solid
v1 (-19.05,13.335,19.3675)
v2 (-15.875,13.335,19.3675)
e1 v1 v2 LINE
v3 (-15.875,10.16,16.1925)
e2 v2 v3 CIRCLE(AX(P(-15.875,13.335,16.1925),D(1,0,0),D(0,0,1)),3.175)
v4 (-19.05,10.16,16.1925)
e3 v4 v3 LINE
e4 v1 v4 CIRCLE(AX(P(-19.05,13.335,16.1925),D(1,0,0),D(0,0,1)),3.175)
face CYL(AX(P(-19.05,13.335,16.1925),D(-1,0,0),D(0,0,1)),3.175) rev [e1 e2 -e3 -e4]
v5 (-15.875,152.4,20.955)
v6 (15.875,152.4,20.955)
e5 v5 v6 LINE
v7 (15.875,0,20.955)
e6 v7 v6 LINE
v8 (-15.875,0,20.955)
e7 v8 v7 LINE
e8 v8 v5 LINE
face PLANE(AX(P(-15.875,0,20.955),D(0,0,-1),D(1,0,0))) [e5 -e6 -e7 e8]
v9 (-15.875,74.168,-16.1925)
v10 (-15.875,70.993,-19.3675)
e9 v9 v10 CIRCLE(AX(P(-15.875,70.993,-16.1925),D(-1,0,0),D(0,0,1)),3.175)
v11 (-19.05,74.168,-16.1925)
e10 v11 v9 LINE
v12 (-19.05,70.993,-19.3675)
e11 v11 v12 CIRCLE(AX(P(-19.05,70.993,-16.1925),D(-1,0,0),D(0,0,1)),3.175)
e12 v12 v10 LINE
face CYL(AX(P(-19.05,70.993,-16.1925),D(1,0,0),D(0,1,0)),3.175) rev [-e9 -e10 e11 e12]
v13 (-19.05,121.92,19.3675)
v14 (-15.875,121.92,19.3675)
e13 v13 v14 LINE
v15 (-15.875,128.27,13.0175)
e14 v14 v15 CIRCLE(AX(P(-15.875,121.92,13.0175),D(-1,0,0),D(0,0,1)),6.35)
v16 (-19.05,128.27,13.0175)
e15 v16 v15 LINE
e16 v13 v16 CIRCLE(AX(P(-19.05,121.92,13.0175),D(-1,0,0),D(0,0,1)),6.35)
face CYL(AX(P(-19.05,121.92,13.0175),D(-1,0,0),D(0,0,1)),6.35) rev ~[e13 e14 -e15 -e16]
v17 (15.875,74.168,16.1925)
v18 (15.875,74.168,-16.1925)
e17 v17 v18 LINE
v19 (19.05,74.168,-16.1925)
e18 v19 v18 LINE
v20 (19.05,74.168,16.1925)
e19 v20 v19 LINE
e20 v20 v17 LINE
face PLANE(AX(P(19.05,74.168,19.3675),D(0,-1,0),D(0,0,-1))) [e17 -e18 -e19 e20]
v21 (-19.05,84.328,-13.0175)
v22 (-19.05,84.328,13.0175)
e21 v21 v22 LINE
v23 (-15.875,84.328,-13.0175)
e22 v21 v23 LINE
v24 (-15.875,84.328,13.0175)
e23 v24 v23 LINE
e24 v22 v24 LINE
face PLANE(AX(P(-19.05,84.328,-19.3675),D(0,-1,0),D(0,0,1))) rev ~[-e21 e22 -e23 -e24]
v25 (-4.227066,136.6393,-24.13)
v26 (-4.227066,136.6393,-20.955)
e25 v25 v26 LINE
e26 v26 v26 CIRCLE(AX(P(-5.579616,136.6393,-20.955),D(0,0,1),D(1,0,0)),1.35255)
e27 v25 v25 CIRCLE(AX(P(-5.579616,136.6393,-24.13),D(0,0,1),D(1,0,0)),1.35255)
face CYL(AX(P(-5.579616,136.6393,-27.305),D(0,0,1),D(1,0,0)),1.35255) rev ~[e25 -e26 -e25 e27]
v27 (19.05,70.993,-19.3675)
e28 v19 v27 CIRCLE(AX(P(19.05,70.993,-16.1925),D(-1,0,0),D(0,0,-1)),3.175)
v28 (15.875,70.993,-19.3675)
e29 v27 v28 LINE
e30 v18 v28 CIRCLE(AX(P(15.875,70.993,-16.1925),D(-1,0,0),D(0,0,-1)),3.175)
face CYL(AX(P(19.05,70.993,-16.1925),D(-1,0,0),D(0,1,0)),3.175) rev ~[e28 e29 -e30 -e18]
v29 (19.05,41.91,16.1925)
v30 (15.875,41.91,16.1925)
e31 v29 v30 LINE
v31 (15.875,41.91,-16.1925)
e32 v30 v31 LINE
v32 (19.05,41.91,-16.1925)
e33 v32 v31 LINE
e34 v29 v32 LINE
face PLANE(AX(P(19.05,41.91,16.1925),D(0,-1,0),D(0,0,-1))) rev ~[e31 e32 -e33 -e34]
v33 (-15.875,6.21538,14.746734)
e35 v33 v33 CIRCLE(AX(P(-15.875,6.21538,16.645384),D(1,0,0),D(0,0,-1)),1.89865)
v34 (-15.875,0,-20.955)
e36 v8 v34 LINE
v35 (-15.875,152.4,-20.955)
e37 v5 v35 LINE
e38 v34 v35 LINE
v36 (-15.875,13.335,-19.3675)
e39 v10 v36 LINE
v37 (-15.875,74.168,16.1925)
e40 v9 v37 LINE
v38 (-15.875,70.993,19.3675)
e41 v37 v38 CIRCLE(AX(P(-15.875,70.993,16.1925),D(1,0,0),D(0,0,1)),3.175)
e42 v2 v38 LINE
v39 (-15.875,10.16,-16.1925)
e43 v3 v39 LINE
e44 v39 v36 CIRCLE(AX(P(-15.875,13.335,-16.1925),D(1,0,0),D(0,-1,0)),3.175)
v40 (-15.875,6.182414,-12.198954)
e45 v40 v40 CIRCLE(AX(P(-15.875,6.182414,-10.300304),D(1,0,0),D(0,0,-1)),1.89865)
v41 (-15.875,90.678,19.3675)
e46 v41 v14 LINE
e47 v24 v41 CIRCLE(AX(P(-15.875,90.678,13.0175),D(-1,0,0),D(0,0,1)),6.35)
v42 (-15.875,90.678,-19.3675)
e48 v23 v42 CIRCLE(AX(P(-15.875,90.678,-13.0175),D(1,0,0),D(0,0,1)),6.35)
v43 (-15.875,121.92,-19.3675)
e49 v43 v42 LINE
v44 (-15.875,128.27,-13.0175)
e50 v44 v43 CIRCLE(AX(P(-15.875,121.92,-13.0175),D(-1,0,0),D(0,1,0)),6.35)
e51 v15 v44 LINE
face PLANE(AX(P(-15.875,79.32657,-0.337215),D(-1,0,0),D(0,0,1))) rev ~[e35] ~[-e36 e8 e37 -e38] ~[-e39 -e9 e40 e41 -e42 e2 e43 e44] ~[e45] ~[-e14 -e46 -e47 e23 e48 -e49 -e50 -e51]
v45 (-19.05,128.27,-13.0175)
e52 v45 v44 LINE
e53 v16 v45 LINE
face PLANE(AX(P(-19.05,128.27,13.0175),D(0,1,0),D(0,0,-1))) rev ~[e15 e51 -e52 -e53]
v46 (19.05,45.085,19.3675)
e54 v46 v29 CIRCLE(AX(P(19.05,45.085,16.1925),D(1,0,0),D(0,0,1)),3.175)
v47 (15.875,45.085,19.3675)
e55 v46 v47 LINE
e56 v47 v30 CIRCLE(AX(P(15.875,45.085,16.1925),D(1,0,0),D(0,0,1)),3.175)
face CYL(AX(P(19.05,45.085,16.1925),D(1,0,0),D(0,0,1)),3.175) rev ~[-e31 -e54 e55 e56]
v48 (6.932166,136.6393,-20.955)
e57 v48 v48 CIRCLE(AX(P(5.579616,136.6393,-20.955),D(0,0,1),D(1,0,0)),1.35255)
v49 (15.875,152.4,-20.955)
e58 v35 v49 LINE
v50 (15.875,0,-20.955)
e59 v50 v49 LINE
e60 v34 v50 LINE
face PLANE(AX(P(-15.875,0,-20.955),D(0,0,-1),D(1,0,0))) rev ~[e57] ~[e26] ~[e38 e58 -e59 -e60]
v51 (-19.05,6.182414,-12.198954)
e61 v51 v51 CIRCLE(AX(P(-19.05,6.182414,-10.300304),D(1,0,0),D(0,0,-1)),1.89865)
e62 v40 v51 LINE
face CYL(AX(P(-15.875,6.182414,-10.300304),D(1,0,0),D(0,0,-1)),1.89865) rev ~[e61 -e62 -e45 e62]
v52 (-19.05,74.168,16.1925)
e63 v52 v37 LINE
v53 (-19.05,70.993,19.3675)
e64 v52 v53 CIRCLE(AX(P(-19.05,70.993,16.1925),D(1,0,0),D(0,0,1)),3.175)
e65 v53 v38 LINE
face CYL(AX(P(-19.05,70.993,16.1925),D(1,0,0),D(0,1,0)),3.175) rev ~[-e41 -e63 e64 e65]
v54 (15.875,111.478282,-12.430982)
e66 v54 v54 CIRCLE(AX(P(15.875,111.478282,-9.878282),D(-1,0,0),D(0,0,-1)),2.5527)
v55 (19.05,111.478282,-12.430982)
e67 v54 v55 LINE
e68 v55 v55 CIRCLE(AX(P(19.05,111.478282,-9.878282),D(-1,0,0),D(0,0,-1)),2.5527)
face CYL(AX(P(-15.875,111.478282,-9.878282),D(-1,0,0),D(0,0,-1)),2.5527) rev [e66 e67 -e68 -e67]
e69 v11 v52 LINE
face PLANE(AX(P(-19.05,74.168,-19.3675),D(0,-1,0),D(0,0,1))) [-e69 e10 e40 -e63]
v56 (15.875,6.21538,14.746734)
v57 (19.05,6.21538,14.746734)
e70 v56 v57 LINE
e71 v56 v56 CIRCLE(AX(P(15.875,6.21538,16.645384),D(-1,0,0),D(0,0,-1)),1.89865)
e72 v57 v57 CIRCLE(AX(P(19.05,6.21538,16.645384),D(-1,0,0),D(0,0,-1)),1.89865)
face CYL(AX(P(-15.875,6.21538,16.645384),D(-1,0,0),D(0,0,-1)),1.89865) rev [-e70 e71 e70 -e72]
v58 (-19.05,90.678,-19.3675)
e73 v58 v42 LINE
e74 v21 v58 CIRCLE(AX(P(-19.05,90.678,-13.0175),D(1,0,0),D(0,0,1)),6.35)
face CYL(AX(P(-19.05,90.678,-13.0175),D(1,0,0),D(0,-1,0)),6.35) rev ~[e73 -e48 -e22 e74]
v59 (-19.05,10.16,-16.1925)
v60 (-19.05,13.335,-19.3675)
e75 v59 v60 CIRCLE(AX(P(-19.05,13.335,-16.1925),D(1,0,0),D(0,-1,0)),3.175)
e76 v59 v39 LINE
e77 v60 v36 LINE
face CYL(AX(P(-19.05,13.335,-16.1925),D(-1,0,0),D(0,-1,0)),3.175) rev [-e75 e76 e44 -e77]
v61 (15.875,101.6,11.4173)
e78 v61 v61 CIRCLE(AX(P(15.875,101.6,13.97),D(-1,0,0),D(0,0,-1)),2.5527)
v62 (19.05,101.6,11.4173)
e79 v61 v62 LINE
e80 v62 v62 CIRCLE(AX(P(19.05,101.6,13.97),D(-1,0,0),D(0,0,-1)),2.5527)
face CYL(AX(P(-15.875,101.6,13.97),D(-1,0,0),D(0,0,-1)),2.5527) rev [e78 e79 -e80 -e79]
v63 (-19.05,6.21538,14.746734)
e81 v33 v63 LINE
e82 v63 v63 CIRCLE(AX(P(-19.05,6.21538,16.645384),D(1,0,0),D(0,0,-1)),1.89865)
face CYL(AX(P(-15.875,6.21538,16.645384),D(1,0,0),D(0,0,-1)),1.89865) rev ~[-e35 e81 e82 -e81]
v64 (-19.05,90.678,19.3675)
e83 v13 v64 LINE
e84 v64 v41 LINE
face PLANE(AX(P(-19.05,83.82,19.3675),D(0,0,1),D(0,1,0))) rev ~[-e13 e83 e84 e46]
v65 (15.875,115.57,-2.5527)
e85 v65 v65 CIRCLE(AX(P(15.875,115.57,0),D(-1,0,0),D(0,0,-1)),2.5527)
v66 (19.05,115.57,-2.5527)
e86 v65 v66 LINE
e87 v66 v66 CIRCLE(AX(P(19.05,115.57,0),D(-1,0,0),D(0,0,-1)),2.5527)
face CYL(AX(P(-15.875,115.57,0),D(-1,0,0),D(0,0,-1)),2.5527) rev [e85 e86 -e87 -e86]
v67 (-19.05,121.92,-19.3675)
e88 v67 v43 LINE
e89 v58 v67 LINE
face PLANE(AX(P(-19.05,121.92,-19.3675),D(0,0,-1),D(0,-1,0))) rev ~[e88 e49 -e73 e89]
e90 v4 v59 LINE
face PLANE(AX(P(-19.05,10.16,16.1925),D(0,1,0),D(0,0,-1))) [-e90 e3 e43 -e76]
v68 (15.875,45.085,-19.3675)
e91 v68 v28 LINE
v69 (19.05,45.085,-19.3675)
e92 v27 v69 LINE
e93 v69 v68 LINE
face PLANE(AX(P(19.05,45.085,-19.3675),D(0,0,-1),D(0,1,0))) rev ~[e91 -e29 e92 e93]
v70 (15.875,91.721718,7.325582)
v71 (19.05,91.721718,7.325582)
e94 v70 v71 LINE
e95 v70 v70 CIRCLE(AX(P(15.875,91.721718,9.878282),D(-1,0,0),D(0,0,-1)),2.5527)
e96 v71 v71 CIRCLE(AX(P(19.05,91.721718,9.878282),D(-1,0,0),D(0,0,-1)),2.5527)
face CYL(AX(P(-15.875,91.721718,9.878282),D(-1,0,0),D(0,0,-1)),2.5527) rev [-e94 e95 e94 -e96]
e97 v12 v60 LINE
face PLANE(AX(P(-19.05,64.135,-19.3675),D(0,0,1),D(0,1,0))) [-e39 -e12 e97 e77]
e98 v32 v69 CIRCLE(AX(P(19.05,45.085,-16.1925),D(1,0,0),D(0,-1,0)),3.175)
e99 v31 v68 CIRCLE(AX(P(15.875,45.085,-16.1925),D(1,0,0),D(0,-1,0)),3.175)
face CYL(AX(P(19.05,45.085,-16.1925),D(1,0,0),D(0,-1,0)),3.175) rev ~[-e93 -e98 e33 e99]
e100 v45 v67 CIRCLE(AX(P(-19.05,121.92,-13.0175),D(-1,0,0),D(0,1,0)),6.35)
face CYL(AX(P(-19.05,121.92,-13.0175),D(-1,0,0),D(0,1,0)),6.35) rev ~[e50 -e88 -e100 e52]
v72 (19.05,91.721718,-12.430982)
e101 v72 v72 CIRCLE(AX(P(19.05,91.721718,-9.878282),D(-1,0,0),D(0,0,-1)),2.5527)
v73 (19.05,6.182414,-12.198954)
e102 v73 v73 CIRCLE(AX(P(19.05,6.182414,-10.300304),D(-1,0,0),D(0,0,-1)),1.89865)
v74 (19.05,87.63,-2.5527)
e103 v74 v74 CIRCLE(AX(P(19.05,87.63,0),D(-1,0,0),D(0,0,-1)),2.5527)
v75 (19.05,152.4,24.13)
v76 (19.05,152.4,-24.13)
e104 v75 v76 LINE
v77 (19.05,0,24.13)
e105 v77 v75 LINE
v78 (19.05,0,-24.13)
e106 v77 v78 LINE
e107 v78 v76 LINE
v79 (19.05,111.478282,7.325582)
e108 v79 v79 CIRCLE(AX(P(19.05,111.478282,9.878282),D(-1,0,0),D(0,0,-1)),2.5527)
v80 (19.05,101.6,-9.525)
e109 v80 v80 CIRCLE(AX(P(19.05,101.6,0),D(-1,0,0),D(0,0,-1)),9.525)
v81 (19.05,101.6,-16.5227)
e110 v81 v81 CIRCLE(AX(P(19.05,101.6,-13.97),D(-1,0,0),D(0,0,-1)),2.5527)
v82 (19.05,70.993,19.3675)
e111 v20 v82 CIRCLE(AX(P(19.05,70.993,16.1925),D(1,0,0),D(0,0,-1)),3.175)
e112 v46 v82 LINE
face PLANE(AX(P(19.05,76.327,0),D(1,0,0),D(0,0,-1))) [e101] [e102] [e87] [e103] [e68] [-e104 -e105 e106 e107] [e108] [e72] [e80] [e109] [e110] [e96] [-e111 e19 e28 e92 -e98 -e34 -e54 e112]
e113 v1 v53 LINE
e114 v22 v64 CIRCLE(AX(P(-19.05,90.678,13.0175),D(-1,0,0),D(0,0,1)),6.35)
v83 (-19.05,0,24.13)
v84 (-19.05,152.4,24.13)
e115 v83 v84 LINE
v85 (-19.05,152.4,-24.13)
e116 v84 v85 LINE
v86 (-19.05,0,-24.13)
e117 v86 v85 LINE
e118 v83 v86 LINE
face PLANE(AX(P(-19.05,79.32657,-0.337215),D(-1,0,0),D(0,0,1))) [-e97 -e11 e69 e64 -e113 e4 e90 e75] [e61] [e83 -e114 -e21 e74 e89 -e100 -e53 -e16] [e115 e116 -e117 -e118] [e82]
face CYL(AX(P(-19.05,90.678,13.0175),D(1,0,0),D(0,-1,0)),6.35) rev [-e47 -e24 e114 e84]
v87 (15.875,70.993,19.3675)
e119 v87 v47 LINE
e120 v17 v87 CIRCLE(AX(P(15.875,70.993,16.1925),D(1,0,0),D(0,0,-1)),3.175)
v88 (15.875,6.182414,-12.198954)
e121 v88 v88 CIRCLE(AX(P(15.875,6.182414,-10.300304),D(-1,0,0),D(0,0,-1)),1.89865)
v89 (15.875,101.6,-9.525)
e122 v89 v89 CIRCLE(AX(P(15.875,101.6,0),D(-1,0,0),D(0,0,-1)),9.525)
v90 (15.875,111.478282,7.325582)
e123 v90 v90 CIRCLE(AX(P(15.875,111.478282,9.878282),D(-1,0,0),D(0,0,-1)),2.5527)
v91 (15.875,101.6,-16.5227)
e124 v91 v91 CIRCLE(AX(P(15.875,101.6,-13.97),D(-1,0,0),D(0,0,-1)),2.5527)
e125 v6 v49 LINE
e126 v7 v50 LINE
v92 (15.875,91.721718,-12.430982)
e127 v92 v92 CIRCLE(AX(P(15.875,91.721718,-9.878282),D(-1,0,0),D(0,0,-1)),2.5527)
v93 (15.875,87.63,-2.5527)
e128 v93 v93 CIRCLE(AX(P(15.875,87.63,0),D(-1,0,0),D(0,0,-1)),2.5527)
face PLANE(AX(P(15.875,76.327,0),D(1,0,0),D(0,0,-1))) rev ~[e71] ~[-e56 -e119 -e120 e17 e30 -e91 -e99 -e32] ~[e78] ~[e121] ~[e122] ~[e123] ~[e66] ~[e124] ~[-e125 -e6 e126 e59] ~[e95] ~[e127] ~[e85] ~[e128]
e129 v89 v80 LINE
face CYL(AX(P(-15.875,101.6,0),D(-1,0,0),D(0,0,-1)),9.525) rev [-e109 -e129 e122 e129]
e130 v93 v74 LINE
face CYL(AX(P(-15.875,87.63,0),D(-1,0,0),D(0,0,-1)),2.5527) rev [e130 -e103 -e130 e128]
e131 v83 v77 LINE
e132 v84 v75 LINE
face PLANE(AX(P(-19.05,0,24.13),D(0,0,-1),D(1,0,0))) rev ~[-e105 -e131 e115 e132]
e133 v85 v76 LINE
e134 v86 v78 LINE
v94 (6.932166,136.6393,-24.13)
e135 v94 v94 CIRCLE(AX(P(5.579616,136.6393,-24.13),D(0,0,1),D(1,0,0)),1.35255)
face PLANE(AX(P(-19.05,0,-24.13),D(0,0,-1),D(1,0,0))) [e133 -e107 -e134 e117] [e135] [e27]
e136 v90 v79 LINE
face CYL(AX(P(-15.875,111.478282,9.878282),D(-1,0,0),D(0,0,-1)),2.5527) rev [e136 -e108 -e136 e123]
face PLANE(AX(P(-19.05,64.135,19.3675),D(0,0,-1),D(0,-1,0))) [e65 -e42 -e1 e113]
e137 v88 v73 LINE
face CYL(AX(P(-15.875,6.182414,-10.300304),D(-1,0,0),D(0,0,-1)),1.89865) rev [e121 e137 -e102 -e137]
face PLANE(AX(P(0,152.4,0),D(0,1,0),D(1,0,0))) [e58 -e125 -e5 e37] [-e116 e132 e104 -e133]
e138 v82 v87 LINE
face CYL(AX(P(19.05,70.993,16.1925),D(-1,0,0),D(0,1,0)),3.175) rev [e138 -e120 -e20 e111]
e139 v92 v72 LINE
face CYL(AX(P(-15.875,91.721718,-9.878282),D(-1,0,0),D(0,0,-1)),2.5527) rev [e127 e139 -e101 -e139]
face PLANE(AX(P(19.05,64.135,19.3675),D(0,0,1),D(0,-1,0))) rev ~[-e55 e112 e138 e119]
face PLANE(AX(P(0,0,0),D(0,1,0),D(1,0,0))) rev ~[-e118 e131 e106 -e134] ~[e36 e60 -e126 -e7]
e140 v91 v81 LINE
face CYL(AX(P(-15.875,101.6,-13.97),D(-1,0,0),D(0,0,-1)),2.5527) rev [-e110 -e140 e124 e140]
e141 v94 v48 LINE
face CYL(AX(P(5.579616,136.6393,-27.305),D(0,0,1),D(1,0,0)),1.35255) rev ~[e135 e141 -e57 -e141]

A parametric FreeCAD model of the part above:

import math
import FreeCAD as App
import Part
import Sketcher
from FreeCAD import Vector
Q = App.Units.Quantity


def edges_at(feature, points):
    """Names of the edges that pass closest to the given points."""
    edges = feature.Shape.Edges
    near = lambda p: min(range(len(edges)), key=lambda i: edges[i].distToShape(Part.Vertex(*p))[0])
    return sorted({f"Edge{near(p) + 1}" for p in points})

doc = App.newDocument("Part")
body = doc.addObject("PartDesign::Body", "Body")

sketch1 = doc.addObject("Sketcher::SketchObject", "Sketch")
body.addObject(sketch1)
sketch1.AttachmentSupport = (doc.XZ_Plane, [""])
sketch1.MapMode = "FlatFace"
sketch1.addGeometry([
    Part.LineSegment(Vector(-19, -24, 0), Vector(-19, 24, 0)),
    Part.LineSegment(Vector(-19, 24, 0), Vector(19, 24, 0)),
    Part.LineSegment(Vector(19, 24, 0), Vector(19, -24, 0)),
    Part.LineSegment(Vector(19, -24, 0), Vector(-19, -24, 0)),
    Part.LineSegment(Vector(16, 21, 0), Vector(-16, 21, 0)),
    Part.LineSegment(Vector(-16, 21, 0), Vector(-16, -21, 0)),
    Part.LineSegment(Vector(-16, -21, 0), Vector(16, -21, 0)),
    Part.LineSegment(Vector(16, -21, 0), Vector(16, 21, 0)),
], False)
sketch1.addConstraint([
    Sketcher.Constraint("Coincident", 0, 2, 1, 1),
    Sketcher.Constraint("Coincident", 1, 2, 2, 1),
    Sketcher.Constraint("Coincident", 2, 2, 3, 1),
    Sketcher.Constraint("Coincident", 3, 2, 0, 1),
    Sketcher.Constraint("Coincident", 4, 2, 5, 1),
    Sketcher.Constraint("Coincident", 5, 2, 6, 1),
    Sketcher.Constraint("Coincident", 6, 2, 7, 1),
    Sketcher.Constraint("Coincident", 7, 2, 4, 1),
    Sketcher.Constraint("Vertical", 0),
    Sketcher.Constraint("Horizontal", 1),
    Sketcher.Constraint("Vertical", 2),
    Sketcher.Constraint("Horizontal", 3),
    Sketcher.Constraint("Horizontal", 4),
    Sketcher.Constraint("Vertical", 5),
    Sketcher.Constraint("Horizontal", 6),
    Sketcher.Constraint("Vertical", 7),
    Sketcher.Constraint("Symmetric", 0, 2, 2, 2, -1, 1),
    Sketcher.Constraint("Symmetric", 4, 2, 6, 2, -1, 1),
    Sketcher.Constraint("DistanceX", 1, 1, 1, 2, Q("1.5 in")),
    Sketcher.Constraint("DistanceY", 0, 1, 0, 2, Q("1.9 in")),
    Sketcher.Constraint("DistanceX", 4, 2, 4, 1, Q("1.25 in")),
    Sketcher.Constraint("DistanceY", 5, 2, 5, 1, Q("1.65 in")),
])
pad1 = doc.addObject("PartDesign::Pad", "Pad")
body.addObject(pad1)
pad1.Profile = sketch1
pad1.Length = Q("6 in")
pad1.Reversed = True

sketch2 = doc.addObject("Sketcher::SketchObject", "Sketch001")
body.addObject(sketch2)
sketch2.AttachmentSupport = (doc.YZ_Plane, [""])
sketch2.MapMode = "FlatFace"
sketch2.AttachmentOffset = App.Placement(Vector(0, 0, -0.625 * 25.4), App.Rotation())
sketch2.addGeometry([
    Part.Circle(Vector(6.2, 16.6, 0), Vector(0, 0, 1), 1.9),
    Part.Circle(Vector(6.2, -10.3, 0), Vector(0, 0, 1), 1.9),
], False)
sketch2.addConstraint([
    Sketcher.Constraint("Equal", 0, 1),
    Sketcher.Constraint("Diameter", 0, Q("0.1495 in")),
    Sketcher.Constraint("DistanceX", -1, 1, 0, 3, Q("0.2447 in")),
    Sketcher.Constraint("DistanceY", 1, 3, 0, 3, 26.945688),
    Sketcher.Constraint("DistanceY", -1, 1, 0, 3, 16.645384),
    Sketcher.Constraint("DistanceX", -1, 1, 1, 3, 6.182414),
])
pocket1 = doc.addObject("PartDesign::Pocket", "Pocket")
body.addObject(pocket1)
pocket1.Profile = sketch2
pocket1.Type = "ThroughAll"
pocket1.Midplane = True

sketch3 = doc.addObject("Sketcher::SketchObject", "Sketch002")
body.addObject(sketch3)
sketch3.AttachmentSupport = (doc.YZ_Plane, [""])
sketch3.MapMode = "FlatFace"
sketch3.AttachmentOffset = App.Placement(Vector(0, 0, -0.75 * 25.4), App.Rotation())
sketch3.addGeometry([
    Part.LineSegment(Vector(10.2, -16.2, 0), Vector(10.2, 16.2, 0)),
    Part.ArcOfCircle(Part.Circle(Vector(13.3, 16.2, 0), Vector(0, 0, 1), 3.2), math.radians(90), math.radians(180)),
    Part.LineSegment(Vector(13.3, 19.4, 0), Vector(64.1, 19.4, 0)),
    Part.ArcOfCircle(Part.Circle(Vector(64.1, 16.2, 0), Vector(0, 0, 1), 3.2), math.radians(0), math.radians(90)),
    Part.LineSegment(Vector(67.3, 16.2, 0), Vector(67.3, -16.2, 0)),
    Part.ArcOfCircle(Part.Circle(Vector(64.1, -16.2, 0), Vector(0, 0, 1), 3.2), math.radians(-90), math.radians(0)),
    Part.LineSegment(Vector(64.1, -19.4, 0), Vector(13.3, -19.4, 0)),
    Part.ArcOfCircle(Part.Circle(Vector(13.3, -16.2, 0), Vector(0, 0, 1), 3.2), math.radians(-180), math.radians(-90)),
], False)
sketch3.addConstraint([
    Sketcher.Constraint("Tangent", 0, 2, 1, 2),
    Sketcher.Constraint("Tangent", 1, 1, 2, 1),
    Sketcher.Constraint("Tangent", 2, 2, 3, 2),
    Sketcher.Constraint("Tangent", 3, 1, 4, 1),
    Sketcher.Constraint("Tangent", 4, 2, 5, 2),
    Sketcher.Constraint("Tangent", 5, 1, 6, 1),
    Sketcher.Constraint("Tangent", 6, 2, 7, 2),
    Sketcher.Constraint("Tangent", 7, 1, 0, 1),
    Sketcher.Constraint("Vertical", 0),
    Sketcher.Constraint("Horizontal", 2),
    Sketcher.Constraint("Vertical", 4),
    Sketcher.Constraint("Horizontal", 6),
    Sketcher.Constraint("Equal", 1, 3),
    Sketcher.Constraint("Equal", 3, 5),
    Sketcher.Constraint("Equal", 5, 7),
    Sketcher.Constraint("DistanceX", 2, 1, 2, 2, Q("2 in")),
    Sketcher.Constraint("Radius", 1, Q("0.125 in")),
    Sketcher.Constraint("DistanceX", -1, 1, 0, 2, Q("0.4 in")),
    Sketcher.Constraint("DistanceY", 7, 3, 1, 1, Q("1.4 in")),
    Sketcher.Constraint("DistanceY", -1, 1, 1, 3, Q("0.6375 in")),
])
pocket2 = doc.addObject("PartDesign::Pocket", "Pocket001")
body.addObject(pocket2)
pocket2.Profile = sketch3
pocket2.Length = Q("0.125 in")
pocket2.Reversed = True

sketch4 = doc.addObject("Sketcher::SketchObject", "Sketch003")
body.addObject(sketch4)
sketch4.AttachmentSupport = (doc.YZ_Plane, [""])
sketch4.MapMode = "FlatFace"
sketch4.AttachmentOffset = App.Placement(Vector(0, 0, 0.75 * 25.4), App.Rotation())
sketch4.addGeometry([
    Part.LineSegment(Vector(67.3, -16.2, 0), Vector(67.3, 16.2, 0)),
    Part.ArcOfCircle(Part.Circle(Vector(64.1, 16.2, 0), Vector(0, 0, 1), 3.2), math.radians(0), math.radians(90)),
    Part.LineSegment(Vector(64.1, 19.4, 0), Vector(45.1, 19.4, 0)),
    Part.ArcOfCircle(Part.Circle(Vector(45.1, 16.2, 0), Vector(0, 0, 1), 3.2), math.radians(90), math.radians(180)),
    Part.LineSegment(Vector(41.9, 16.2, 0), Vector(41.9, -16.2, 0)),
    Part.ArcOfCircle(Part.Circle(Vector(45.1, -16.2, 0), Vector(0, 0, 1), 3.2), math.radians(-180), math.radians(-90)),
    Part.LineSegment(Vector(45.1, -19.4, 0), Vector(64.1, -19.4, 0)),
    Part.ArcOfCircle(Part.Circle(Vector(64.1, -16.2, 0), Vector(0, 0, 1), 3.2), math.radians(-90), math.radians(0)),
], False)
sketch4.addConstraint([
    Sketcher.Constraint("Tangent", 0, 2, 1, 1),
    Sketcher.Constraint("Tangent", 1, 2, 2, 1),
    Sketcher.Constraint("Tangent", 2, 2, 3, 1),
    Sketcher.Constraint("Tangent", 3, 2, 4, 1),
    Sketcher.Constraint("Tangent", 4, 2, 5, 1),
    Sketcher.Constraint("Tangent", 5, 2, 6, 1),
    Sketcher.Constraint("Tangent", 6, 2, 7, 1),
    Sketcher.Constraint("Tangent", 7, 2, 0, 1),
    Sketcher.Constraint("Vertical", 0),
    Sketcher.Constraint("Horizontal", 2),
    Sketcher.Constraint("Vertical", 4),
    Sketcher.Constraint("Horizontal", 6),
    Sketcher.Constraint("Equal", 1, 3),
    Sketcher.Constraint("Equal", 3, 5),
    Sketcher.Constraint("Equal", 5, 7),
    Sketcher.Constraint("Radius", 1, Q("0.125 in")),
    Sketcher.Constraint("DistanceX", 3, 2, 0, 2, Q("1 in")),
    Sketcher.Constraint("DistanceY", 7, 3, 1, 2, Q("1.4 in")),
    Sketcher.Constraint("DistanceX", -1, 1, 0, 2, Q("2.65 in")),
    Sketcher.Constraint("DistanceY", -1, 1, 1, 3, Q("0.6375 in")),
])
pocket3 = doc.addObject("PartDesign::Pocket", "Pocket002")
body.addObject(pocket3)
pocket3.Profile = sketch4
pocket3.Length = Q("0.125 in")

sketch5 = doc.addObject("Sketcher::SketchObject", "Sketch004")
body.addObject(sketch5)
sketch5.AttachmentSupport = (doc.YZ_Plane, [""])
sketch5.MapMode = "FlatFace"
sketch5.AttachmentOffset = App.Placement(Vector(0, 0, -0.625 * 25.4), App.Rotation())
sketch5.addGeometry(Part.Circle(Vector(102, 0, 0), Vector(0, 0, 1), 10), False)
sketch5.addConstraint([
    Sketcher.Constraint("PointOnObject", 0, 3, -1),
    Sketcher.Constraint("Diameter", 0, Q("0.75 in")),
    Sketcher.Constraint("DistanceX", -1, 1, 0, 3, Q("4 in")),
])
pocket4 = doc.addObject("PartDesign::Pocket", "Pocket003")
body.addObject(pocket4)
pocket4.Profile = sketch5
pocket4.Length = Q("1.375 in")
pocket4.Reversed = True

sketch6 = doc.addObject("Sketcher::SketchObject", "Sketch005")
body.addObject(sketch6)
sketch6.AttachmentSupport = (doc.YZ_Plane, [""])
sketch6.MapMode = "FlatFace"
sketch6.AttachmentOffset = App.Placement(Vector(0, 0, -0.625 * 25.4), App.Rotation())
sketch6.addGeometry(Part.Circle(Vector(87.6, 0, 0), Vector(0, 0, 1), 2.6), False)
sketch6.addConstraint([
    Sketcher.Constraint("PointOnObject", 0, 3, -1),
    Sketcher.Constraint("Diameter", 0, Q("0.201 in")),
    Sketcher.Constraint("DistanceX", -1, 1, 0, 3, Q("3.45 in")),
])
pocket5 = doc.addObject("PartDesign::Pocket", "Pocket004")
body.addObject(pocket5)
pocket5.Profile = sketch6
pocket5.Length = Q("1.375 in")
pocket5.Reversed = True

sketch7 = doc.addObject("Sketcher::SketchObject", "Sketch006")
body.addObject(sketch7)
sketch7.AttachmentSupport = (doc.YZ_Plane, [""])
sketch7.MapMode = "FlatFace"
sketch7.AttachmentOffset = App.Placement(Vector(0, 0, -0.625 * 25.4), App.Rotation())
sketch7.addGeometry(Part.Circle(Vector(91.7, 9.9, 0), Vector(0, 0, 1), 2.6), False)
sketch7.addConstraint([
    Sketcher.Constraint("Diameter", 0, Q("0.201 in")),
    Sketcher.Constraint("DistanceX", -1, 1, 0, 3, 91.721718),
    Sketcher.Constraint("DistanceY", -1, 1, 0, 3, 9.878282),
])
pocket6 = doc.addObject("PartDesign::Pocket", "Pocket005")
body.addObject(pocket6)
pocket6.Profile = sketch7
pocket6.Length = Q("1.375 in")
pocket6.Reversed = True

sketch8 = doc.addObject("Sketcher::SketchObject", "Sketch007")
body.addObject(sketch8)
sketch8.AttachmentSupport = (doc.YZ_Plane, [""])
sketch8.MapMode = "FlatFace"
sketch8.AttachmentOffset = App.Placement(Vector(0, 0, -0.625 * 25.4), App.Rotation())
sketch8.addGeometry(Part.Circle(Vector(101.6, 14, 0), Vector(0, 0, 1), 2.6), False)
sketch8.addConstraint([
    Sketcher.Constraint("Diameter", 0, Q("0.201 in")),
    Sketcher.Constraint("DistanceX", -1, 1, 0, 3, Q("4 in")),
    Sketcher.Constraint("DistanceY", -1, 1, 0, 3, Q("0.55 in")),
])
pocket7 = doc.addObject("PartDesign::Pocket", "Pocket006")
body.addObject(pocket7)
pocket7.Profile = sketch8
pocket7.Length = Q("1.375 in")
pocket7.Reversed = True

sketch9 = doc.addObject("Sketcher::SketchObject", "Sketch008")
body.addObject(sketch9)
sketch9.AttachmentSupport = (doc.YZ_Plane, [""])
sketch9.MapMode = "FlatFace"
sketch9.AttachmentOffset = App.Placement(Vector(0, 0, -0.625 * 25.4), App.Rotation())
sketch9.addGeometry(Part.Circle(Vector(111.5, 9.9, 0), Vector(0, 0, 1), 2.6), False)
sketch9.addConstraint([
    Sketcher.Constraint("Diameter", 0, Q("0.201 in")),
    Sketcher.Constraint("DistanceX", -1, 1, 0, 3, 111.478282),
    Sketcher.Constraint("DistanceY", -1, 1, 0, 3, 9.878282),
])
pocket8 = doc.addObject("PartDesign::Pocket", "Pocket007")
body.addObject(pocket8)
pocket8.Profile = sketch9
pocket8.Length = Q("1.375 in")
pocket8.Reversed = True

sketch10 = doc.addObject("Sketcher::SketchObject", "Sketch009")
body.addObject(sketch10)
sketch10.AttachmentSupport = (doc.YZ_Plane, [""])
sketch10.MapMode = "FlatFace"
sketch10.AttachmentOffset = App.Placement(Vector(0, 0, -0.625 * 25.4), App.Rotation())
sketch10.addGeometry(Part.Circle(Vector(115.6, 0, 0), Vector(0, 0, 1), 2.6), False)
sketch10.addConstraint([
    Sketcher.Constraint("PointOnObject", 0, 3, -1),
    Sketcher.Constraint("Diameter", 0, Q("0.201 in")),
    Sketcher.Constraint("DistanceX", -1, 1, 0, 3, Q("4.55 in")),
])
pocket9 = doc.addObject("PartDesign::Pocket", "Pocket008")
body.addObject(pocket9)
pocket9.Profile = sketch10
pocket9.Length = Q("1.375 in")
pocket9.Reversed = True

sketch11 = doc.addObject("Sketcher::SketchObject", "Sketch010")
body.addObject(sketch11)
sketch11.AttachmentSupport = (doc.YZ_Plane, [""])
sketch11.MapMode = "FlatFace"
sketch11.AttachmentOffset = App.Placement(Vector(0, 0, -0.625 * 25.4), App.Rotation())
sketch11.addGeometry(Part.Circle(Vector(111.5, -9.9, 0), Vector(0, 0, 1), 2.6), False)
sketch11.addConstraint([
    Sketcher.Constraint("Diameter", 0, Q("0.201 in")),
    Sketcher.Constraint("DistanceX", -1, 1, 0, 3, 111.478282),
    Sketcher.Constraint("DistanceY", 0, 3, -1, 1, 9.878282),
])
pocket10 = doc.addObject("PartDesign::Pocket", "Pocket009")
body.addObject(pocket10)
pocket10.Profile = sketch11
pocket10.Length = Q("1.375 in")
pocket10.Reversed = True

sketch12 = doc.addObject("Sketcher::SketchObject", "Sketch011")
body.addObject(sketch12)
sketch12.AttachmentSupport = (doc.YZ_Plane, [""])
sketch12.MapMode = "FlatFace"
sketch12.AttachmentOffset = App.Placement(Vector(0, 0, -0.625 * 25.4), App.Rotation())
sketch12.addGeometry(Part.Circle(Vector(101.6, -14, 0), Vector(0, 0, 1), 2.6), False)
sketch12.addConstraint([
    Sketcher.Constraint("Diameter", 0, Q("0.201 in")),
    Sketcher.Constraint("DistanceX", -1, 1, 0, 3, Q("4 in")),
    Sketcher.Constraint("DistanceY", 0, 3, -1, 1, Q("0.55 in")),
])
pocket11 = doc.addObject("PartDesign::Pocket", "Pocket010")
body.addObject(pocket11)
pocket11.Profile = sketch12
pocket11.Length = Q("1.375 in")
pocket11.Reversed = True

sketch13 = doc.addObject("Sketcher::SketchObject", "Sketch012")
body.addObject(sketch13)
sketch13.AttachmentSupport = (doc.YZ_Plane, [""])
sketch13.MapMode = "FlatFace"
sketch13.AttachmentOffset = App.Placement(Vector(0, 0, -0.625 * 25.4), App.Rotation())
sketch13.addGeometry(Part.Circle(Vector(91.7, -9.9, 0), Vector(0, 0, 1), 2.6), False)
sketch13.addConstraint([
    Sketcher.Constraint("Diameter", 0, Q("0.201 in")),
    Sketcher.Constraint("DistanceX", -1, 1, 0, 3, 91.721718),
    Sketcher.Constraint("DistanceY", 0, 3, -1, 1, 9.878282),
])
pocket12 = doc.addObject("PartDesign::Pocket", "Pocket011")
body.addObject(pocket12)
pocket12.Profile = sketch13
pocket12.Length = Q("1.375 in")
pocket12.Reversed = True

sketch14 = doc.addObject("Sketcher::SketchObject", "Sketch013")
body.addObject(sketch14)
sketch14.AttachmentSupport = (doc.YZ_Plane, [""])
sketch14.MapMode = "FlatFace"
sketch14.AttachmentOffset = App.Placement(Vector(0, 0, -0.75 * 25.4), App.Rotation())
sketch14.addGeometry([
    Part.LineSegment(Vector(77, -13, 0), Vector(77, 13, 0)),
    Part.ArcOfCircle(Part.Circle(Vector(84, 13, 0), Vector(0, 0, 1), 6), math.radians(90), math.radians(180)),
    Part.LineSegment(Vector(84, 19, 0), Vector(122, 19, 0)),
    Part.ArcOfCircle(Part.Circle(Vector(122, 13, 0), Vector(0, 0, 1), 6), math.radians(0), math.radians(90)),
    Part.LineSegment(Vector(128, 13, 0), Vector(128, -13, 0)),
    Part.ArcOfCircle(Part.Circle(Vector(122, -13, 0), Vector(0, 0, 1), 6), math.radians(-90), math.radians(0)),
    Part.LineSegment(Vector(122, -19, 0), Vector(84, -19, 0)),
    Part.ArcOfCircle(Part.Circle(Vector(84, -13, 0), Vector(0, 0, 1), 6), math.radians(180), math.radians(270)),
], False)
sketch14.addConstraint([
    Sketcher.Constraint("Tangent", 0, 2, 1, 2),
    Sketcher.Constraint("Tangent", 1, 1, 2, 1),
    Sketcher.Constraint("Tangent", 2, 2, 3, 2),
    Sketcher.Constraint("Tangent", 3, 1, 4, 1),
    Sketcher.Constraint("Tangent", 4, 2, 5, 2),
    Sketcher.Constraint("Tangent", 5, 1, 6, 1),
    Sketcher.Constraint("Tangent", 6, 2, 7, 2),
    Sketcher.Constraint("Tangent", 7, 1, 0, 1),
    Sketcher.Constraint("Vertical", 0),
    Sketcher.Constraint("Horizontal", 2),
    Sketcher.Constraint("Vertical", 4),
    Sketcher.Constraint("Horizontal", 6),
    Sketcher.Constraint("Equal", 1, 3),
    Sketcher.Constraint("Equal", 3, 5),
    Sketcher.Constraint("Equal", 5, 7),
    Sketcher.Constraint("Radius", 1, Q("0.25 in")),
    Sketcher.Constraint("DistanceX", 2, 1, 2, 2, Q("1.5 in")),
    Sketcher.Constraint("DistanceX", -1, 1, 1, 3, Q("3.3 in")),
    Sketcher.Constraint("DistanceY", 0, 1, 0, 2, Q("1.025 in")),
    Sketcher.Constraint("DistanceY", -1, 1, 1, 3, Q("0.5125 in")),
])
pocket13 = doc.addObject("PartDesign::Pocket", "Pocket012")
body.addObject(pocket13)
pocket13.Profile = sketch14
pocket13.Length = Q("0.125 in")
pocket13.Reversed = True

sketch15 = doc.addObject("Sketcher::SketchObject", "Sketch014")
body.addObject(sketch15)
sketch15.AttachmentSupport = (doc.XY_Plane, [""])
sketch15.MapMode = "FlatFace"
sketch15.AttachmentOffset = App.Placement(Vector(0, 0, -0.95 * 25.4), App.Rotation())
sketch15.addGeometry([
    Part.Circle(Vector(5.6, 136.6, 0), Vector(0, 0, 1), 1.4),
    Part.Circle(Vector(-5.6, 136.6, 0), Vector(0, 0, 1), 1.4),
], False)
sketch15.addConstraint([
    Sketcher.Constraint("Equal", 0, 1),
    Sketcher.Constraint("Symmetric", 0, 3, 1, 3, -2),
    Sketcher.Constraint("Diameter", 0, Q("0.1065 in")),
    Sketcher.Constraint("DistanceY", -1, 1, 0, 3, Q("5.3795 in")),
    Sketcher.Constraint("DistanceX", 1, 3, 0, 3, 11.159232),
])
doc.recompute()
hole = doc.addObject("PartDesign::Hole", "Hole")
body.addObject(hole)
hole.Profile = sketch15
hole.ThreadType = "None"
hole.Diameter = Q("0.1065 in")
hole.DepthType = "Dimension"
hole.Depth = Q("0.125 in")
hole.DrillPoint = "Flat"
hole.Reversed = True

sketch16 = doc.addObject("Sketcher::SketchObject", "Sketch015")
body.addObject(sketch16)
sketch16.AttachmentSupport = (doc.YZ_Plane, [""])
sketch16.MapMode = "FlatFace"
sketch16.AttachmentOffset = App.Placement(Vector(0, 0, 0.75 * 25.4), App.Rotation())
sketch16.addGeometry([
    Part.LineSegment(Vector(78, -19, 0), Vector(78, 19, 0)),
    Part.LineSegment(Vector(78, 19, 0), Vector(64, 19, 0)),
    Part.LineSegment(Vector(64, 19, 0), Vector(64, -19, 0)),
    Part.LineSegment(Vector(64, -19, 0), Vector(78, -19, 0)),
], False)
sketch16.addConstraint([
    Sketcher.Constraint("Coincident", 0, 2, 1, 1),
    Sketcher.Constraint("Coincident", 1, 2, 2, 1),
    Sketcher.Constraint("Coincident", 2, 2, 3, 1),
    Sketcher.Constraint("Coincident", 3, 2, 0, 1),
    Sketcher.Constraint("Vertical", 0),
    Sketcher.Constraint("Horizontal", 1),
    Sketcher.Constraint("Vertical", 2),
    Sketcher.Constraint("Horizontal", 3),
    Sketcher.Constraint("DistanceX", 1, 2, 1, 1, Q("0.565 in")),
    Sketcher.Constraint("DistanceY", 0, 1, 0, 2, Q("1.525 in")),
    Sketcher.Constraint("DistanceX", -1, 1, 0, 2, Q("3.09 in")),
    Sketcher.Constraint("DistanceY", -1, 1, 0, 2, Q("0.7625 in")),
])
pocket14 = doc.addObject("PartDesign::Pocket", "Pocket013")
body.addObject(pocket14)
pocket14.Profile = sketch16
pocket14.Type = "UpToFirst"

sketch17 = doc.addObject("Sketcher::SketchObject", "Sketch016")
body.addObject(sketch17)
sketch17.AttachmentSupport = (doc.YZ_Plane, [""])
sketch17.MapMode = "FlatFace"
sketch17.AttachmentOffset = App.Placement(Vector(0, 0, 0.75 * 25.4), App.Rotation())
sketch17.addGeometry([
    Part.LineSegment(Vector(78, -19, 0), Vector(78, 19, 0)),
    Part.LineSegment(Vector(78, 19, 0), Vector(64, 19, 0)),
    Part.LineSegment(Vector(64, 19, 0), Vector(64, -19, 0)),
    Part.LineSegment(Vector(64, -19, 0), Vector(78, -19, 0)),
], False)
sketch17.addConstraint([
    Sketcher.Constraint("Coincident", 0, 2, 1, 1),
    Sketcher.Constraint("Coincident", 1, 2, 2, 1),
    Sketcher.Constraint("Coincident", 2, 2, 3, 1),
    Sketcher.Constraint("Coincident", 3, 2, 0, 1),
    Sketcher.Constraint("Vertical", 0),
    Sketcher.Constraint("Horizontal", 1),
    Sketcher.Constraint("Vertical", 2),
    Sketcher.Constraint("Horizontal", 3),
    Sketcher.Constraint("DistanceX", 1, 2, 1, 1, Q("0.565 in")),
    Sketcher.Constraint("DistanceY", 0, 1, 0, 2, Q("1.525 in")),
    Sketcher.Constraint("DistanceX", -1, 1, 0, 2, Q("3.09 in")),
    Sketcher.Constraint("DistanceY", -1, 1, 0, 2, Q("0.7625 in")),
])
pocket15 = doc.addObject("PartDesign::Pocket", "Pocket014")
body.addObject(pocket15)
pocket15.Profile = sketch17
pocket15.Length = 1
pocket15.Reversed = True
doc.recompute()

fillet = doc.addObject("PartDesign::Fillet", "Fillet")
body.addObject(fillet)
fillet.Base = (pocket15, edges_at(pocket15, [(17.462, 78.486, -19.367)]))
fillet.Radius = Q("0.125 in")
doc.recompute()

fillet2 = doc.addObject("PartDesign::Fillet", "Fillet001")
body.addObject(fillet2)
fillet2.Base = (fillet, edges_at(fillet, [(17.462, 78.486, 19.367)]))
fillet2.Radius = Q("0.125 in")

sketch18 = doc.addObject("Sketcher::SketchObject", "Sketch017")
body.addObject(sketch18)
sketch18.AttachmentSupport = (doc.YZ_Plane, [""])
sketch18.MapMode = "FlatFace"
sketch18.AttachmentOffset = App.Placement(Vector(0, 0, -0.75 * 25.4), App.Rotation())
sketch18.addGeometry([
    Part.LineSegment(Vector(78, -19, 0), Vector(78, 19, 0)),
    Part.LineSegment(Vector(78, 19, 0), Vector(89, 19, 0)),
    Part.LineSegment(Vector(89, 19, 0), Vector(89, -19, 0)),
    Part.LineSegment(Vector(89, -19, 0), Vector(78, -19, 0)),
], False)
sketch18.addConstraint([
    Sketcher.Constraint("Coincident", 0, 2, 1, 1),
    Sketcher.Constraint("Coincident", 1, 2, 2, 1),
    Sketcher.Constraint("Coincident", 2, 2, 3, 1),
    Sketcher.Constraint("Coincident", 3, 2, 0, 1),
    Sketcher.Constraint("Vertical", 0),
    Sketcher.Constraint("Horizontal", 1),
    Sketcher.Constraint("Vertical", 2),
    Sketcher.Constraint("Horizontal", 3),
    Sketcher.Constraint("DistanceX", 1, 1, 1, 2, Q("0.4 in")),
    Sketcher.Constraint("DistanceY", 0, 1, 0, 2, Q("1.525 in")),
    Sketcher.Constraint("DistanceX", -1, 1, 0, 2, Q("3.09 in")),
    Sketcher.Constraint("DistanceY", -1, 1, 0, 2, Q("0.7625 in")),
])
pad2 = doc.addObject("PartDesign::Pad", "Pad001")
body.addObject(pad2)
pad2.Profile = sketch18
pad2.Length = Q("0.125 in")

sketch19 = doc.addObject("Sketcher::SketchObject", "Sketch018")
body.addObject(sketch19)
sketch19.AttachmentSupport = (doc.YZ_Plane, [""])
sketch19.MapMode = "FlatFace"
sketch19.AttachmentOffset = App.Placement(Vector(0, 0, -0.75 * 25.4), App.Rotation())
sketch19.addGeometry([
    Part.LineSegment(Vector(78, 19, 0), Vector(78, -19, 0)),
    Part.LineSegment(Vector(78, -19, 0), Vector(64, -19, 0)),
    Part.LineSegment(Vector(64, -19, 0), Vector(64, 19, 0)),
    Part.LineSegment(Vector(64, 19, 0), Vector(78, 19, 0)),
], False)
sketch19.addConstraint([
    Sketcher.Constraint("Coincident", 0, 2, 1, 1),
    Sketcher.Constraint("Coincident", 1, 2, 2, 1),
    Sketcher.Constraint("Coincident", 2, 2, 3, 1),
    Sketcher.Constraint("Coincident", 3, 2, 0, 1),
    Sketcher.Constraint("Vertical", 0),
    Sketcher.Constraint("Horizontal", 1),
    Sketcher.Constraint("Vertical", 2),
    Sketcher.Constraint("Horizontal", 3),
    Sketcher.Constraint("DistanceX", 1, 2, 1, 1, Q("0.565 in")),
    Sketcher.Constraint("DistanceY", 0, 2, 0, 1, Q("1.525 in")),
    Sketcher.Constraint("DistanceX", -1, 1, 0, 2, Q("3.09 in")),
    Sketcher.Constraint("DistanceY", 0, 2, -1, 1, Q("0.7625 in")),
])
pocket16 = doc.addObject("PartDesign::Pocket", "Pocket015")
body.addObject(pocket16)
pocket16.Profile = sketch19
pocket16.Type = "UpToFirst"
pocket16.Reversed = True
doc.recompute()

fillet3 = doc.addObject("PartDesign::Fillet", "Fillet002")
body.addObject(fillet3)
fillet3.Base = (pocket16, edges_at(pocket16, [(-17.462, 78.486, 19.367)]))
fillet3.Radius = Q("0.125 in")
doc.recompute()

fillet4 = doc.addObject("PartDesign::Fillet", "Fillet003")
body.addObject(fillet4)
fillet4.Base = (fillet3, edges_at(fillet3, [(-17.462, 78.486, -19.367)]))
fillet4.Radius = Q("0.125 in")
doc.recompute()

fillet5 = doc.addObject("PartDesign::Fillet", "Fillet004")
body.addObject(fillet5)
fillet5.Base = (fillet4, edges_at(fillet4, [(-17.462, 88.646, -19.367)]))
fillet5.Radius = Q("0.25 in")
doc.recompute()

fillet6 = doc.addObject("PartDesign::Fillet", "Fillet005")
body.addObject(fillet6)
fillet6.Base = (fillet5, edges_at(fillet5, [(-17.462, 88.646, 19.367)]))
fillet6.Radius = Q("0.25 in")

sketch20 = doc.addObject("Sketcher::SketchObject", "Sketch019")
body.addObject(sketch20)
sketch20.AttachmentSupport = (doc.YZ_Plane, [""])
sketch20.MapMode = "FlatFace"
sketch20.AttachmentOffset = App.Placement(Vector(0, 0, -0.75 * 25.4), App.Rotation())
sketch20.addGeometry([
    Part.LineSegment(Vector(74, 19, 0), Vector(84, 19, 0)),
    Part.LineSegment(Vector(84, 19, 0), Vector(84, -21, 0)),
    Part.LineSegment(Vector(84, -21, 0), Vector(74, -19, 0)),
    Part.LineSegment(Vector(74, -19, 0), Vector(74, 19, 0)),
], False)
sketch20.addConstraint([
    Sketcher.Constraint("Coincident", 0, 2, 1, 1),
    Sketcher.Constraint("Coincident", 1, 2, 2, 1),
    Sketcher.Constraint("Coincident", 2, 2, 3, 1),
    Sketcher.Constraint("Coincident", 3, 2, 0, 1),
    Sketcher.Constraint("Horizontal", 0),
    Sketcher.Constraint("Vertical", 1),
    Sketcher.Constraint("Vertical", 3),
    Sketcher.Constraint("DistanceY", 1, 2, 1, 1, Q("1.575 in")),
    Sketcher.Constraint("DistanceY", 3, 1, 3, 2, Q("1.525 in")),
    Sketcher.Constraint("DistanceX", -1, 1, 2, 2, Q("2.92 in")),
    Sketcher.Constraint("DistanceY", 1, 2, -1, 1, Q("0.8125 in")),
    Sketcher.Constraint("DistanceX", 0, 1, 0, 2, 10.186715),
])
pad3 = doc.addObject("PartDesign::Pad", "Pad002")
body.addObject(pad3)
pad3.Profile = sketch20
pad3.Length = Q("0.125 in")

sketch21 = doc.addObject("Sketcher::SketchObject", "Sketch020")
body.addObject(sketch21)
sketch21.AttachmentSupport = (doc.YZ_Plane, [""])
sketch21.MapMode = "FlatFace"
sketch21.AttachmentOffset = App.Placement(Vector(0, 0, -0.75 * 25.4), App.Rotation())
sketch21.addGeometry([
    Part.LineSegment(Vector(84, -19, 0), Vector(84, 19, 0)),
    Part.LineSegment(Vector(84, 19, 0), Vector(95, 19, 0)),
    Part.LineSegment(Vector(95, 19, 0), Vector(95, -19, 0)),
    Part.LineSegment(Vector(95, -19, 0), Vector(84, -19, 0)),
], False)
sketch21.addConstraint([
    Sketcher.Constraint("Coincident", 0, 2, 1, 1),
    Sketcher.Constraint("Coincident", 1, 2, 2, 1),
    Sketcher.Constraint("Coincident", 2, 2, 3, 1),
    Sketcher.Constraint("Coincident", 3, 2, 0, 1),
    Sketcher.Constraint("Vertical", 0),
    Sketcher.Constraint("Horizontal", 1),
    Sketcher.Constraint("Vertical", 2),
    Sketcher.Constraint("Horizontal", 3),
    Sketcher.Constraint("DistanceX", 1, 1, 1, 2, Q("0.42 in")),
    Sketcher.Constraint("DistanceY", 0, 1, 0, 2, Q("1.525 in")),
    Sketcher.Constraint("DistanceX", -1, 1, 0, 2, Q("3.32 in")),
    Sketcher.Constraint("DistanceY", -1, 1, 0, 2, Q("0.7625 in")),
])
pocket17 = doc.addObject("PartDesign::Pocket", "Pocket016")
body.addObject(pocket17)
pocket17.Profile = sketch21
pocket17.Length = Q("0.125 in")
pocket17.Reversed = True

sketch22 = doc.addObject("Sketcher::SketchObject", "Sketch021")
body.addObject(sketch22)
sketch22.AttachmentSupport = (doc.YZ_Plane, [""])
sketch22.MapMode = "FlatFace"
sketch22.AttachmentOffset = App.Placement(Vector(0, 0, 0.75 * 25.4), App.Rotation())
sketch22.addGeometry([
    Part.LineSegment(Vector(74.2, -19.4, 0), Vector(78.5, -19.4, 0)),
    Part.LineSegment(Vector(78.5, -19.4, 0), Vector(78.5, 19.4, 0)),
    Part.LineSegment(Vector(78.5, 19.4, 0), Vector(74.2, 19.4, 0)),
    Part.LineSegment(Vector(74.2, 19.4, 0), Vector(74.2, -19.4, 0)),
], False)
sketch22.addConstraint([
    Sketcher.Constraint("Coincident", 0, 2, 1, 1),
    Sketcher.Constraint("Coincident", 1, 2, 2, 1),
    Sketcher.Constraint("Coincident", 2, 2, 3, 1),
    Sketcher.Constraint("Coincident", 3, 2, 0, 1),
    Sketcher.Constraint("Horizontal", 0),
    Sketcher.Constraint("Vertical", 1),
    Sketcher.Constraint("Horizontal", 2),
    Sketcher.Constraint("Vertical", 3),
    Sketcher.Constraint("DistanceX", 0, 1, 0, 2, Q("0.17 in")),
    Sketcher.Constraint("DistanceY", 1, 1, 1, 2, Q("1.525 in")),
    Sketcher.Constraint("DistanceX", -1, 1, 0, 2, Q("3.09 in")),
    Sketcher.Constraint("DistanceY", 0, 2, -1, 1, Q("0.7625 in")),
])
pad4 = doc.addObject("PartDesign::Pad", "Pad003")
body.addObject(pad4)
pad4.Profile = sketch22
pad4.Length = Q("0.125 in")
pad4.Reversed = True
doc.recompute()

fillet7 = doc.addObject("PartDesign::Fillet", "Fillet006")
body.addObject(fillet7)
fillet7.Base = (pad4, edges_at(pad4, [(17.462, 74.168, -19.367)]))
fillet7.Radius = Q("0.125 in")
doc.recompute()

fillet8 = doc.addObject("PartDesign::Fillet", "Fillet007")
body.addObject(fillet8)
fillet8.Base = (fillet7, edges_at(fillet7, [(17.462, 74.168, 19.367)]))
fillet8.Radius = Q("0.125 in")
doc.recompute()

fillet9 = doc.addObject("PartDesign::Fillet", "Fillet008")
body.addObject(fillet9)
fillet9.Base = (fillet8, edges_at(fillet8, [(-17.462, 74.168, 19.367)]))
fillet9.Radius = Q("0.125 in")
doc.recompute()

fillet10 = doc.addObject("PartDesign::Fillet", "Fillet009")
body.addObject(fillet10)
fillet10.Base = (fillet9, edges_at(fillet9, [(-17.462, 74.168, -19.367)]))
fillet10.Radius = Q("0.125 in")
doc.recompute()

fillet11 = doc.addObject("PartDesign::Fillet", "Fillet010")
body.addObject(fillet11)
fillet11.Base = (fillet10, edges_at(fillet10, [(-17.462, 84.328, -19.367)]))
fillet11.Radius = Q("0.25 in")
doc.recompute()

fillet12 = doc.addObject("PartDesign::Fillet", "Fillet011")
body.addObject(fillet12)
fillet12.Base = (fillet11, edges_at(fillet11, [(-17.462, 84.328, 19.367)]))
fillet12.Radius = Q("0.25 in")

doc.recompute()
